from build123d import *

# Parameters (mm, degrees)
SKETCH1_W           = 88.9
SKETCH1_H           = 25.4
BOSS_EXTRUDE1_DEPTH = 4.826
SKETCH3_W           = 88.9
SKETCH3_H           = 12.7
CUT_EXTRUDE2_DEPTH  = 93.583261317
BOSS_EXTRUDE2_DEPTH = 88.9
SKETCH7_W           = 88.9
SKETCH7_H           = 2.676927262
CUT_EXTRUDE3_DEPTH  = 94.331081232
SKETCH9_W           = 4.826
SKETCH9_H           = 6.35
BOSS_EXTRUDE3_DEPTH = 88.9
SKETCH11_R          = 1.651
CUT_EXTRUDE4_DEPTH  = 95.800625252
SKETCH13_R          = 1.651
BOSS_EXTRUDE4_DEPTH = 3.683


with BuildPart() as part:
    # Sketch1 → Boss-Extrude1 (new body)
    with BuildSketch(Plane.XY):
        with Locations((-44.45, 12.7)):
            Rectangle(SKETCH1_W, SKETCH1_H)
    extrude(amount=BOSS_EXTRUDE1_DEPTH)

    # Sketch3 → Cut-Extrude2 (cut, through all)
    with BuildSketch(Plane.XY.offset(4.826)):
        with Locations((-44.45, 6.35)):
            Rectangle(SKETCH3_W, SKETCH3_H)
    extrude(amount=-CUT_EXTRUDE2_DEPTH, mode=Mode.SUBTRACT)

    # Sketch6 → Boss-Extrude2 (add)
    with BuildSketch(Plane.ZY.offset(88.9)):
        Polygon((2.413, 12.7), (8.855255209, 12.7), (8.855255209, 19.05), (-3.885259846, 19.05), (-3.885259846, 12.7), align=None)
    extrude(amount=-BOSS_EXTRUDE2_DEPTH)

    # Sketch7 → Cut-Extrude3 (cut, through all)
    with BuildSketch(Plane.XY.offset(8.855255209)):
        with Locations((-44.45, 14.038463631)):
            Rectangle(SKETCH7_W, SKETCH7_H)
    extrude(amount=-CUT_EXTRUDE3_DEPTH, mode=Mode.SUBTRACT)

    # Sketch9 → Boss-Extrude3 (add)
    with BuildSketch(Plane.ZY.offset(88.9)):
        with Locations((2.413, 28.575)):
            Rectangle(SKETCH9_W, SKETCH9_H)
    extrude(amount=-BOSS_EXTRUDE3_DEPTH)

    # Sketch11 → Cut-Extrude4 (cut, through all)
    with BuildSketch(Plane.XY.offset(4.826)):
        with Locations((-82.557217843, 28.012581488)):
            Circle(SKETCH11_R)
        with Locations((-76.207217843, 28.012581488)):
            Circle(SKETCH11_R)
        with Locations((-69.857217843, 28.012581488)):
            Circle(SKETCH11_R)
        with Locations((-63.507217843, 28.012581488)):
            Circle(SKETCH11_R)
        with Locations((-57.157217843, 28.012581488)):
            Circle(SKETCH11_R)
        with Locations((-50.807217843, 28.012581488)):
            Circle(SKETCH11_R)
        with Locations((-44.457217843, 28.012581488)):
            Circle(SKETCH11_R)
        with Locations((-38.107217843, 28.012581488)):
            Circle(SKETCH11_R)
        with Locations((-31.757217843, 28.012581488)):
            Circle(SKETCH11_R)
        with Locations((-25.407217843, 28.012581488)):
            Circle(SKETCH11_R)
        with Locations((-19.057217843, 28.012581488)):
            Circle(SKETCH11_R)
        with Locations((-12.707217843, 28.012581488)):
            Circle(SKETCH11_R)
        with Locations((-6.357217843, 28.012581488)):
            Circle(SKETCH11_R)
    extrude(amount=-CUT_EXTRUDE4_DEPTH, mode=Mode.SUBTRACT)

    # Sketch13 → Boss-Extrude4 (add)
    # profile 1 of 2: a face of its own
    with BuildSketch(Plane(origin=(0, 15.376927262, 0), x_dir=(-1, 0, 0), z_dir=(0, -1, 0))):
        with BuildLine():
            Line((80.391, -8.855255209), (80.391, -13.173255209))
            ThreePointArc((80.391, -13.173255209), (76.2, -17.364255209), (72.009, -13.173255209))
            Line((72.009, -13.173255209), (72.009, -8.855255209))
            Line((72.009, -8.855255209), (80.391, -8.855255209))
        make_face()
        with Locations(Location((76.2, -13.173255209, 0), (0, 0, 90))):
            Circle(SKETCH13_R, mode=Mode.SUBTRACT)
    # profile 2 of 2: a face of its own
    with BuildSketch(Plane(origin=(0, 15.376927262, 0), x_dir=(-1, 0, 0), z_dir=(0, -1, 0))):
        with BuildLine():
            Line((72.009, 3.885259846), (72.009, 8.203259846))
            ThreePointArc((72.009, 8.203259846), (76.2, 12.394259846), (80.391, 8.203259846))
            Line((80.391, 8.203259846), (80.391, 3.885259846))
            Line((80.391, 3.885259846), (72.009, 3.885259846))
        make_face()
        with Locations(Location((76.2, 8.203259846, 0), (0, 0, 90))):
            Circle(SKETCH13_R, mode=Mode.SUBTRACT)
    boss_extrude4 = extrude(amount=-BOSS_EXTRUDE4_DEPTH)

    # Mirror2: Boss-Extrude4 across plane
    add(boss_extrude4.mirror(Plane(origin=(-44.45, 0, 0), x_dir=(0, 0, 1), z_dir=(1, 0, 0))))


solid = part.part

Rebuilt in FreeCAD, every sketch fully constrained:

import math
import FreeCAD as App
import Part
import Sketcher
from FreeCAD import Vector
Q = App.Units.Quantity

doc = App.newDocument("Part")
params = doc.addObject("Spreadsheet::Sheet", "Params")
for row, (alias, value) in enumerate([
    ("sketch1_height", "1 in"),
    ("sketch1_width", "3.5 in"),
    ("pad1_length", "0.19 in"),
    ("sketch2_width", "3.5 in"),
    ("sketch2_height", "0.5 in"),
    ("sketch3_width", "0.25 in"),
    ("pad2_length", "3.5 in"),
    ("sketch4_width", "3.5 in"),
    ("sketch5_width", "0.25 in"),
    ("sketch5_height", "0.19 in"),
    ("pad3_length", "3.5 in"),
    ("sketch6_diameter", "0.13 in"),
    ("sketch7_diameter", "0.13 in"),
    ("sketch7_radius", "0.165 in"),
    ("sketch7_height", "0.17 in"),
    ("pad4_length", "0.145 in"),
], start=1):
    params.set(f"A{row}", alias)
    params.set(f"B{row}", "=" + value)
    params.setAlias(f"B{row}", alias)

body = doc.addObject("PartDesign::Body", "Body")

# Sketch on XY plane
sketch1 = body.newObject("Sketcher::SketchObject", "Sketch")
sketch1.AttachmentSupport = (doc.getObject("XY_Plane"), [""])
sketch1.MapMode = "FlatFace"
sketch1.addGeometry(Part.LineSegment(Vector(-88.9, 25.4, 0), Vector(-88.9, 0, 0)), False)
sketch1.addGeometry(Part.LineSegment(Vector(-88.9, 0, 0), Vector(0, 0, 0)), False)
sketch1.addGeometry(Part.LineSegment(Vector(0, 0, 0), Vector(0, 25.4, 0)), False)
sketch1.addGeometry(Part.LineSegment(Vector(0, 25.4, 0), Vector(-88.9, 25.4, 0)), False)
sketch1.addConstraint(Sketcher.Constraint("Coincident", 0, 2, 1, 1))
sketch1.addConstraint(Sketcher.Constraint("Coincident", 1, 2, 2, 1))
sketch1.addConstraint(Sketcher.Constraint("Coincident", 2, 2, 3, 1))
sketch1.addConstraint(Sketcher.Constraint("Coincident", 3, 2, 0, 1))
sketch1.addConstraint(Sketcher.Constraint("Vertical", 0))
sketch1.addConstraint(Sketcher.Constraint("Horizontal", 1))
sketch1.addConstraint(Sketcher.Constraint("Vertical", 2))
sketch1.addConstraint(Sketcher.Constraint("Horizontal", 3))
sketch1.addConstraint(Sketcher.Constraint("Coincident", 1, 2, -1, 1))
sketch1.addConstraint(Sketcher.Constraint("DistanceY", 0, 2, 0, 1, Q("1 in")))
sketch1.addConstraint(Sketcher.Constraint("DistanceX", 1, 1, 1, 2, Q("3.5 in")))
sketch1.setExpression("Constraints[9]", "Params.sketch1_height")
sketch1.setExpression("Constraints[10]", "Params.sketch1_width")
pad1 = body.newObject("PartDesign::Pad", "Pad")
pad1.Profile = sketch1
pad1.setExpression("Length", "Params.pad1_length")

# Sketch on XY plane
sketch2 = body.newObject("Sketcher::SketchObject", "Sketch001")
sketch2.AttachmentSupport = (doc.getObject("XY_Plane"), [""])
sketch2.MapMode = "FlatFace"
sketch2.AttachmentOffset = App.Placement(Vector(0, 0, 0.19 * 25.4), App.Rotation())
sketch2.addGeometry(Part.LineSegment(Vector(-88.9, 12.7, 0), Vector(-88.9, 0, 0)), False)
sketch2.addGeometry(Part.LineSegment(Vector(-88.9, 0, 0), Vector(0, 0, 0)), False)
sketch2.addGeometry(Part.LineSegment(Vector(0, 0, 0), Vector(0, 12.7, 0)), False)
sketch2.addGeometry(Part.LineSegment(Vector(0, 12.7, 0), Vector(-88.9, 12.7, 0)), False)
sketch2.addConstraint(Sketcher.Constraint("Coincident", 0, 2, 1, 1))
sketch2.addConstraint(Sketcher.Constraint("Coincident", 1, 2, 2, 1))
sketch2.addConstraint(Sketcher.Constraint("Coincident", 2, 2, 3, 1))
sketch2.addConstraint(Sketcher.Constraint("Coincident", 3, 2, 0, 1))
sketch2.addConstraint(Sketcher.Constraint("Vertical", 0))
sketch2.addConstraint(Sketcher.Constraint("Horizontal", 1))
sketch2.addConstraint(Sketcher.Constraint("Vertical", 2))
sketch2.addConstraint(Sketcher.Constraint("Horizontal", 3))
sketch2.addConstraint(Sketcher.Constraint("Coincident", 1, 2, -1, 1))
sketch2.addConstraint(Sketcher.Constraint("DistanceX", 1, 1, 1, 2, Q("3.5 in")))
sketch2.addConstraint(Sketcher.Constraint("DistanceY", 0, 2, 0, 1, Q("0.5 in")))
sketch2.setExpression("Constraints[9]", "Params.sketch2_width")
sketch2.setExpression("Constraints[10]", "Params.sketch2_height")
pocket1 = body.newObject("PartDesign::Pocket", "Pocket")
pocket1.Profile = sketch2
pocket1.Type = "ThroughAll"

# Sketch on YZ plane
sketch3 = body.newObject("Sketcher::SketchObject", "Sketch002")
sketch3.AttachmentSupport = (doc.getObject("YZ_Plane"), [""])
sketch3.MapMode = "FlatFace"
sketch3.AttachmentOffset = App.Placement(Vector(0, 0, -3.5 * 25.4), App.Rotation())
sketch3.addGeometry(Part.LineSegment(Vector(12.7, 8.855255, 0), Vector(19.05, 8.855255, 0)), False)
sketch3.addGeometry(Part.LineSegment(Vector(19.05, 8.855255, 0), Vector(19.05, -3.88526, 0)), False)
sketch3.addGeometry(Part.LineSegment(Vector(19.05, -3.88526, 0), Vector(12.7, -3.88526, 0)), False)
sketch3.addGeometry(Part.LineSegment(Vector(12.7, -3.88526, 0), Vector(12.7, 8.855255, 0)), False)
sketch3.addConstraint(Sketcher.Constraint("Coincident", 0, 2, 1, 1))
sketch3.addConstraint(Sketcher.Constraint("Coincident", 1, 2, 2, 1))
sketch3.addConstraint(Sketcher.Constraint("Coincident", 2, 2, 3, 1))
sketch3.addConstraint(Sketcher.Constraint("Coincident", 3, 2, 0, 1))
sketch3.addConstraint(Sketcher.Constraint("Horizontal", 0))
sketch3.addConstraint(Sketcher.Constraint("Vertical", 1))
sketch3.addConstraint(Sketcher.Constraint("Horizontal", 2))
sketch3.addConstraint(Sketcher.Constraint("Vertical", 3))
sketch3.addConstraint(Sketcher.Constraint("DistanceX", 0, 1, 0, 2, Q("0.25 in")))
sketch3.addConstraint(Sketcher.Constraint("DistanceX", -1, 1, 2, 2, Q("0.5 in")))
sketch3.addConstraint(Sketcher.Constraint("DistanceY", 1, 2, 1, 1, Q("12.740515 mm")))
sketch3.addConstraint(Sketcher.Constraint("DistanceY", 1, 2, -1, 1, Q("3.88526 mm")))
sketch3.setExpression("Constraints[8]", "Params.sketch3_width")
pad2 = body.newObject("PartDesign::Pad", "Pad001")
pad2.Profile = sketch3
pad2.setExpression("Length", "Params.pad2_length")

# Sketch on XY plane
sketch4 = body.newObject("Sketcher::SketchObject", "Sketch003")
sketch4.AttachmentSupport = (doc.getObject("XY_Plane"), [""])
sketch4.MapMode = "FlatFace"
sketch4.AttachmentOffset = App.Placement(Vector(0, 0, 8.855255), App.Rotation())
sketch4.addGeometry(Part.LineSegment(Vector(-88.9, 15.376927, 0), Vector(-88.9, 12.7, 0)), False)
sketch4.addGeometry(Part.LineSegment(Vector(-88.9, 12.7, 0), Vector(0, 12.7, 0)), False)
sketch4.addGeometry(Part.LineSegment(Vector(0, 12.7, 0), Vector(0, 15.376927, 0)), False)
sketch4.addGeometry(Part.LineSegment(Vector(0, 15.376927, 0), Vector(-88.9, 15.376927, 0)), False)
sketch4.addConstraint(Sketcher.Constraint("Coincident", 0, 2, 1, 1))
sketch4.addConstraint(Sketcher.Constraint("Coincident", 1, 2, 2, 1))
sketch4.addConstraint(Sketcher.Constraint("Coincident", 2, 2, 3, 1))
sketch4.addConstraint(Sketcher.Constraint("Coincident", 3, 2, 0, 1))
sketch4.addConstraint(Sketcher.Constraint("Vertical", 0))
sketch4.addConstraint(Sketcher.Constraint("Horizontal", 1))
sketch4.addConstraint(Sketcher.Constraint("Vertical", 2))
sketch4.addConstraint(Sketcher.Constraint("Horizontal", 3))
sketch4.addConstraint(Sketcher.Constraint("PointOnObject", 1, 2, -2))
sketch4.addConstraint(Sketcher.Constraint("DistanceX", 1, 1, 1, 2, Q("3.5 in")))
sketch4.addConstraint(Sketcher.Constraint("DistanceY", -1, 1, 0, 2, Q("0.5 in")))
sketch4.addConstraint(Sketcher.Constraint("DistanceY", 0, 2, 0, 1, Q("2.676927 mm")))
sketch4.setExpression("Constraints[9]", "Params.sketch4_width")
pocket2 = body.newObject("PartDesign::Pocket", "Pocket001")
pocket2.Profile = sketch4
pocket2.Type = "ThroughAll"

# Sketch on YZ plane
sketch5 = body.newObject("Sketcher::SketchObject", "Sketch004")
sketch5.AttachmentSupport = (doc.getObject("YZ_Plane"), [""])
sketch5.MapMode = "FlatFace"
sketch5.AttachmentOffset = App.Placement(Vector(0, 0, -3.5 * 25.4), App.Rotation())
sketch5.addGeometry(Part.LineSegment(Vector(31.75, 0, 0), Vector(25.4, 0, 0)), False)
sketch5.addGeometry(Part.LineSegment(Vector(25.4, 0, 0), Vector(25.4, 4.826, 0)), False)
sketch5.addGeometry(Part.LineSegment(Vector(25.4, 4.826, 0), Vector(31.75, 4.826, 0)), False)
sketch5.addGeometry(Part.LineSegment(Vector(31.75, 4.826, 0), Vector(31.75, 0, 0)), False)
sketch5.addConstraint(Sketcher.Constraint("Coincident", 0, 2, 1, 1))
sketch5.addConstraint(Sketcher.Constraint("Coincident", 1, 2, 2, 1))
sketch5.addConstraint(Sketcher.Constraint("Coincident", 2, 2, 3, 1))
sketch5.addConstraint(Sketcher.Constraint("Coincident", 3, 2, 0, 1))
sketch5.addConstraint(Sketcher.Constraint("Horizontal", 0))
sketch5.addConstraint(Sketcher.Constraint("Vertical", 1))
sketch5.addConstraint(Sketcher.Constraint("Horizontal", 2))
sketch5.addConstraint(Sketcher.Constraint("Vertical", 3))
sketch5.addConstraint(Sketcher.Constraint("PointOnObject", 0, 2, -1))
sketch5.addConstraint(Sketcher.Constraint("DistanceX", -1, 1, 0, 2, Q("1 in")))
sketch5.addConstraint(Sketcher.Constraint("DistanceX", 0, 2, 0, 1, Q("0.25 in")))
sketch5.addConstraint(Sketcher.Constraint("DistanceY", 1, 1, 1, 2, Q("0.19 in")))
sketch5.setExpression("Constraints[10]", "Params.sketch5_width")
sketch5.setExpression("Constraints[11]", "Params.sketch5_height")
pad3 = body.newObject("PartDesign::Pad", "Pad002")
pad3.Profile = sketch5
pad3.setExpression("Length", "Params.pad3_length")

# Sketch on XY plane
sketch6 = body.newObject("Sketcher::SketchObject", "Sketch005")
sketch6.AttachmentSupport = (doc.getObject("XY_Plane"), [""])
sketch6.MapMode = "FlatFace"
sketch6.AttachmentOffset = App.Placement(Vector(0, 0, 0.19 * 25.4), App.Rotation())
sketch6.addGeometry(Part.Circle(Vector(-82.557218, 28.012581, 0), Vector(0, 0, 1), 1.651), False)
sketch6.addGeometry(Part.Circle(Vector(-76.207218, 28.012581, 0), Vector(0, 0, 1), 1.651), False)
sketch6.addGeometry(Part.Circle(Vector(-69.857218, 28.012581, 0), Vector(0, 0, 1), 1.651), False)
sketch6.addGeometry(Part.Circle(Vector(-63.507218, 28.012581, 0), Vector(0, 0, 1), 1.651), False)
sketch6.addGeometry(Part.Circle(Vector(-57.157218, 28.012581, 0), Vector(0, 0, 1), 1.651), False)
sketch6.addGeometry(Part.Circle(Vector(-50.807218, 28.012581, 0), Vector(0, 0, 1), 1.651), False)
sketch6.addGeometry(Part.Circle(Vector(-44.457218, 28.012581, 0), Vector(0, 0, 1), 1.651), False)
sketch6.addGeometry(Part.Circle(Vector(-38.107218, 28.012581, 0), Vector(0, 0, 1), 1.651), False)
sketch6.addGeometry(Part.Circle(Vector(-31.757218, 28.012581, 0), Vector(0, 0, 1), 1.651), False)
sketch6.addGeometry(Part.Circle(Vector(-25.407218, 28.012581, 0), Vector(0, 0, 1), 1.651), False)
sketch6.addGeometry(Part.Circle(Vector(-19.057218, 28.012581, 0), Vector(0, 0, 1), 1.651), False)
sketch6.addGeometry(Part.Circle(Vector(-12.707218, 28.012581, 0), Vector(0, 0, 1), 1.651), False)
sketch6.addGeometry(Part.Circle(Vector(-6.357218, 28.012581, 0), Vector(0, 0, 1), 1.651), False)
sketch6.addConstraint(Sketcher.Constraint("Equal", 0, 1))
sketch6.addConstraint(Sketcher.Constraint("Equal", 1, 2))
sketch6.addConstraint(Sketcher.Constraint("Equal", 2, 3))
sketch6.addConstraint(Sketcher.Constraint("Equal", 3, 4))
sketch6.addConstraint(Sketcher.Constraint("Equal", 4, 5))
sketch6.addConstraint(Sketcher.Constraint("Equal", 5, 6))
sketch6.addConstraint(Sketcher.Constraint("Equal", 6, 7))
sketch6.addConstraint(Sketcher.Constraint("Equal", 7, 8))
sketch6.addConstraint(Sketcher.Constraint("Equal", 8, 9))
sketch6.addConstraint(Sketcher.Constraint("Equal", 9, 10))
sketch6.addConstraint(Sketcher.Constraint("Equal", 10, 11))
sketch6.addConstraint(Sketcher.Constraint("Equal", 11, 12))
sketch6.addConstraint(Sketcher.Constraint("Horizontal", 0, 3, 1, 3))
sketch6.addConstraint(Sketcher.Constraint("Horizontal", 1, 3, 2, 3))
sketch6.addConstraint(Sketcher.Constraint("Horizontal", 2, 3, 3, 3))
sketch6.addConstraint(Sketcher.Constraint("Horizontal", 3, 3, 4, 3))
sketch6.addConstraint(Sketcher.Constraint("Horizontal", 4, 3, 5, 3))
sketch6.addConstraint(Sketcher.Constraint("Horizontal", 5, 3, 6, 3))
sketch6.addConstraint(Sketcher.Constraint("Horizontal", 6, 3, 7, 3))
sketch6.addConstraint(Sketcher.Constraint("Horizontal", 7, 3, 8, 3))
sketch6.addConstraint(Sketcher.Constraint("Horizontal", 8, 3, 9, 3))
sketch6.addConstraint(Sketcher.Constraint("Horizontal", 9, 3, 10, 3))
sketch6.addConstraint(Sketcher.Constraint("Horizontal", 10, 3, 11, 3))
sketch6.addConstraint(Sketcher.Constraint("Horizontal", 11, 3, 12, 3))
sketch6.addConstraint(Sketcher.Constraint("Diameter", 0, Q("0.13 in")))
sketch6.addConstraint(Sketcher.Constraint("DistanceX", 0, 3, 4, 3, Q("1 in")))
sketch6.addConstraint(Sketcher.Constraint("DistanceX", 1, 3, 5, 3, Q("1 in")))
sketch6.addConstraint(Sketcher.Constraint("DistanceX", 2, 3, 6, 3, Q("1 in")))
sketch6.addConstraint(Sketcher.Constraint("DistanceX", 3, 3, 7, 3, Q("1 in")))
sketch6.addConstraint(Sketcher.Constraint("DistanceX", 4, 3, 8, 3, Q("1 in")))
sketch6.addConstraint(Sketcher.Constraint("DistanceX", 5, 3, 9, 3, Q("1 in")))
sketch6.addConstraint(Sketcher.Constraint("DistanceX", 6, 3, 10, 3, Q("1 in")))
sketch6.addConstraint(Sketcher.Constraint("DistanceX", 7, 3, 11, 3, Q("1 in")))
sketch6.addConstraint(Sketcher.Constraint("DistanceX", 8, 3, 12, 3, Q("1 in")))
sketch6.addConstraint(Sketcher.Constraint("DistanceX", 0, 3, 2, 3, Q("0.5 in")))
sketch6.addConstraint(Sketcher.Constraint("DistanceX", 1, 3, 3, 3, Q("0.5 in")))
sketch6.addConstraint(Sketcher.Constraint("DistanceX", 0, 3, 1, 3, Q("0.25 in")))
sketch6.addConstraint(Sketcher.Constraint("DistanceY", -1, 1, 0, 3, Q("28.012581 mm")))
sketch6.addConstraint(Sketcher.Constraint("DistanceX", 0, 3, -1, 1, Q("82.557218 mm")))
sketch6.setExpression("Constraints[24]", "Params.sketch6_diameter")
pocket3 = body.newObject("PartDesign::Pocket", "Pocket002")
pocket3.Profile = sketch6
pocket3.Type = "ThroughAll"

# Sketch on XZ plane
sketch7 = body.newObject("Sketcher::SketchObject", "Sketch006")
sketch7.AttachmentSupport = (doc.getObject("XZ_Plane"), [""])
sketch7.MapMode = "FlatFace"
sketch7.AttachmentOffset = App.Placement(Vector(0, 0, -15.376927), App.Rotation())
sketch7.addGeometry(Part.LineSegment(Vector(-80.391, 13.173255, 0), Vector(-80.391, 8.855255, 0)), False)
sketch7.addGeometry(Part.LineSegment(Vector(-80.391, 8.855255, 0), Vector(-72.009, 8.855255, 0)), False)
sketch7.addGeometry(Part.LineSegment(Vector(-72.009, 8.855255, 0), Vector(-72.009, 13.173255, 0)), False)
sketch7.addGeometry(Part.ArcOfCircle(Part.Circle(Vector(-76.2, 13.173255, 0), Vector(0, 0, 1), 4.191), math.radians(0), math.radians(180)), False)
sketch7.addGeometry(Part.Circle(Vector(-76.2, 13.173255, 0), Vector(0, 0, 1), 1.651), False)
sketch7.addGeometry(Part.LineSegment(Vector(-72.009, -8.20326, 0), Vector(-72.009, -3.88526, 0)), False)
sketch7.addGeometry(Part.LineSegment(Vector(-72.009, -3.88526, 0), Vector(-80.391, -3.88526, 0)), False)
sketch7.addGeometry(Part.LineSegment(Vector(-80.391, -3.88526, 0), Vector(-80.391, -8.20326, 0)), False)
sketch7.addGeometry(Part.ArcOfCircle(Part.Circle(Vector(-76.2, -8.20326, 0), Vector(0, 0, 1), 4.191), math.radians(180), math.radians(360)), False)
sketch7.addGeometry(Part.Circle(Vector(-76.2, -8.20326, 0), Vector(0, 0, 1), 1.651), False)
sketch7.addConstraint(Sketcher.Constraint("Coincident", 0, 2, 1, 1))
sketch7.addConstraint(Sketcher.Constraint("Coincident", 1, 2, 2, 1))
sketch7.addConstraint(Sketcher.Constraint("Tangent", 2, 2, 3, 1))
sketch7.addConstraint(Sketcher.Constraint("Tangent", 3, 2, 0, 1))
sketch7.addConstraint(Sketcher.Constraint("Coincident", 5, 2, 6, 1))
sketch7.addConstraint(Sketcher.Constraint("Coincident", 6, 2, 7, 1))
sketch7.addConstraint(Sketcher.Constraint("Tangent", 7, 2, 8, 1))
sketch7.addConstraint(Sketcher.Constraint("Tangent", 8, 2, 5, 1))
sketch7.addConstraint(Sketcher.Constraint("Vertical", 0))
sketch7.addConstraint(Sketcher.Constraint("Horizontal", 1))
sketch7.addConstraint(Sketcher.Constraint("Vertical", 2))
sketch7.addConstraint(Sketcher.Constraint("Vertical", 5))
sketch7.addConstraint(Sketcher.Constraint("Horizontal", 6))
sketch7.addConstraint(Sketcher.Constraint("Vertical", 7))
sketch7.addConstraint(Sketcher.Constraint("Coincident", 4, 3, 3, 3))
sketch7.addConstraint(Sketcher.Constraint("Coincident", 9, 3, 8, 3))
sketch7.addConstraint(Sketcher.Constraint("Equal", 3, 8))
sketch7.addConstraint(Sketcher.Constraint("Equal", 4, 9))
sketch7.addConstraint(Sketcher.Constraint("Vertical", 4, 3, 8, 3))
sketch7.addConstraint(Sketcher.Constraint("Equal", 2, 5))
sketch7.addConstraint(Sketcher.Constraint("Diameter", 4, Q("0.13 in")))
sketch7.addConstraint(Sketcher.Constraint("DistanceX", 3, 3, -1, 1, Q("3 in")))
sketch7.addConstraint(Sketcher.Constraint("Radius", 3, Q("0.165 in")))
sketch7.addConstraint(Sketcher.Constraint("DistanceY", 0, 2, 0, 1, Q("0.17 in")))
sketch7.addConstraint(Sketcher.Constraint("DistanceY", 8, 3, -1, 1, Q("8.20326 mm")))
sketch7.addConstraint(Sketcher.Constraint("DistanceY", -1, 1, 3, 3, Q("13.173255 mm")))
sketch7.setExpression("Constraints[20]", "Params.sketch7_diameter")
sketch7.setExpression("Constraints[22]", "Params.sketch7_radius")
sketch7.setExpression("Constraints[23]", "Params.sketch7_height")
pad4 = body.newObject("PartDesign::Pad", "Pad003")
pad4.Profile = sketch7
pad4.setExpression("Length", "Params.pad4_length")
pad4.Reversed = True
doc.recompute()

datumplane = body.newObject("PartDesign::Plane", "DatumPlane")
datumplane.AttachmentSupport = (doc.getObject("YZ_Plane"), [""])
datumplane.MapMode = "FlatFace"
datumplane.AttachmentOffset = App.Placement(Vector(0, 0, -1.75 * 25.4), App.Rotation())
mirrored = body.newObject("PartDesign::Mirrored", "Mirrored")
mirrored.Originals = [pad4]
mirrored.MirrorPlane = (datumplane, [""])
body.Tip = mirrored

doc.recompute()
